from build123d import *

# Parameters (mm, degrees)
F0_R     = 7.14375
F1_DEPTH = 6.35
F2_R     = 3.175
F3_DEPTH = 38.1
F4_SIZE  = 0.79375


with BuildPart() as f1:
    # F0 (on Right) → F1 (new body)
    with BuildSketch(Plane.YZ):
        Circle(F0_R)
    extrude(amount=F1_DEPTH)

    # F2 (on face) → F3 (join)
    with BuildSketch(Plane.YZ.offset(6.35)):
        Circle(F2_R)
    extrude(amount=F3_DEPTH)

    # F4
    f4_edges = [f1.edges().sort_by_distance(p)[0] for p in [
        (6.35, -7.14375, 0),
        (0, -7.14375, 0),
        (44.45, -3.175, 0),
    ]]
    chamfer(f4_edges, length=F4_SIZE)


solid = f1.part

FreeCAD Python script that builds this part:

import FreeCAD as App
import Part
import Sketcher
from FreeCAD import Vector
Q = App.Units.Quantity


def edges_at(feature, points):
    """Names of the edges that pass closest to the given points."""
    edges = feature.Shape.Edges
    near = lambda p: min(range(len(edges)), key=lambda i: edges[i].distToShape(Part.Vertex(*p))[0])
    return sorted({f"Edge{near(p) + 1}" for p in points})

doc = App.newDocument("Part")
params = doc.addObject("Spreadsheet::Sheet", "Params")
for row, (alias, value) in enumerate([
    ("sketch1_diameter", "0.5625 in"),
    ("pad1_length", "0.25 in"),
    ("sketch2_diameter", "0.25 in"),
    ("pad2_length", "1.5 in"),
    ("chamfer_size", "0.03125 in"),
], start=1):
    params.set(f"A{row}", alias)
    params.set(f"B{row}", "=" + value)
    params.setAlias(f"B{row}", alias)

body = doc.addObject("PartDesign::Body", "Body")

# Sketch on YZ plane
sketch1 = doc.addObject("Sketcher::SketchObject", "Sketch")
body.addObject(sketch1)
sketch1.AttachmentSupport = (doc.YZ_Plane, [""])
sketch1.MapMode = "FlatFace"
sketch1.addGeometry(Part.Circle(Vector(0, 0, 0), Vector(0, 0, 1), 7.14375), False)
sketch1.addConstraint([
    Sketcher.Constraint("Coincident", 0, 3, -1, 1),
    Sketcher.Constraint("Diameter", 0, Q("0.5625 in")),
])
sketch1.setExpression("Constraints[1]", "Params.sketch1_diameter")
pad1 = doc.addObject("PartDesign::Pad", "Pad")
body.addObject(pad1)
pad1.Profile = sketch1
pad1.setExpression("Length", "Params.pad1_length")

# Sketch on YZ plane
sketch2 = doc.addObject("Sketcher::SketchObject", "Sketch001")
body.addObject(sketch2)
sketch2.AttachmentSupport = (doc.YZ_Plane, [""])
sketch2.MapMode = "FlatFace"
sketch2.AttachmentOffset = App.Placement(Vector(0, 0, 0.25 * 25.4), App.Rotation())
sketch2.addGeometry(Part.Circle(Vector(0, 0, 0), Vector(0, 0, 1), 3.175), False)
sketch2.addConstraint([
    Sketcher.Constraint("Coincident", 0, 3, -1, 1),
    Sketcher.Constraint("Diameter", 0, Q("0.25 in")),
])
sketch2.setExpression("Constraints[1]", "Params.sketch2_diameter")
pad2 = doc.addObject("PartDesign::Pad", "Pad001")
body.addObject(pad2)
pad2.Profile = sketch2
pad2.setExpression("Length", "Params.pad2_length")
doc.recompute()

chamfer = doc.addObject("PartDesign::Chamfer", "Chamfer")
body.addObject(chamfer)
chamfer.Base = (pad2, edges_at(pad2, [(6.35, -7.144, 0), (0, -7.144, 0), (44.45, -3.175, 0)]))
chamfer.setExpression("Size", "Params.chamfer_size")

doc.recompute()
